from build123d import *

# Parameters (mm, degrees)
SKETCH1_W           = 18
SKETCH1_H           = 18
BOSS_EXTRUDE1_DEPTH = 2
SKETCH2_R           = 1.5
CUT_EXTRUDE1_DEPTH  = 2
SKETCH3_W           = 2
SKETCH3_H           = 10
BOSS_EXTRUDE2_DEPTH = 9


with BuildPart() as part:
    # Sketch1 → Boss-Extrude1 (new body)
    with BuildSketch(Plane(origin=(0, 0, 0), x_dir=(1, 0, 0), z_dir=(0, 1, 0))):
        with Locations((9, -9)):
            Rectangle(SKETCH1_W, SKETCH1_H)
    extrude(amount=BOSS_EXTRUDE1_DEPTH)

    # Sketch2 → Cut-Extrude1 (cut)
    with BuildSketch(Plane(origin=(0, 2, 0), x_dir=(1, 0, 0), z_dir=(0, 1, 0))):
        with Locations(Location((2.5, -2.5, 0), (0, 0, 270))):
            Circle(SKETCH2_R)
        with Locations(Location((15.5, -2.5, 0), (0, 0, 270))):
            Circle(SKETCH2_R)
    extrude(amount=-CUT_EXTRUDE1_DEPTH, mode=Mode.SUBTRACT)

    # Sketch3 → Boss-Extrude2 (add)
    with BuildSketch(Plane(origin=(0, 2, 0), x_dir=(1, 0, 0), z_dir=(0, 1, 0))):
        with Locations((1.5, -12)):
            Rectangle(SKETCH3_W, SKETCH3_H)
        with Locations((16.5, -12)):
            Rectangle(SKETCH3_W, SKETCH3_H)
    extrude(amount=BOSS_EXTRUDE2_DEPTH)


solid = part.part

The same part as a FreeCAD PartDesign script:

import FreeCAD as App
import Part
import Sketcher
Q = App.Units.Quantity

doc = App.newDocument("Part")
body = doc.addObject("PartDesign::Body", "Body")

# Sketch on XZ plane
sketch1 = body.newObject("Sketcher::SketchObject", "Sketch")
sketch1.AttachmentSupport = (doc.getObject("XZ_Plane"), [""])
sketch1.MapMode = "FlatFace"
sketch1.addGeometry(Part.LineSegment(App.Vector(0, 0, 0), App.Vector(0, 18, 0)), False)
sketch1.addGeometry(Part.LineSegment(App.Vector(0, 18, 0), App.Vector(18, 18, 0)), False)
sketch1.addGeometry(Part.LineSegment(App.Vector(18, 18, 0), App.Vector(18, 0, 0)), False)
sketch1.addGeometry(Part.LineSegment(App.Vector(18, 0, 0), App.Vector(0, 0, 0)), False)
sketch1.addConstraint(Sketcher.Constraint("Coincident", 0, 2, 1, 1))
sketch1.addConstraint(Sketcher.Constraint("Coincident", 1, 2, 2, 1))
sketch1.addConstraint(Sketcher.Constraint("Coincident", 2, 2, 3, 1))
sketch1.addConstraint(Sketcher.Constraint("Coincident", 3, 2, 0, 1))
sketch1.addConstraint(Sketcher.Constraint("Vertical", 0))
sketch1.addConstraint(Sketcher.Constraint("Horizontal", 1))
sketch1.addConstraint(Sketcher.Constraint("Vertical", 2))
sketch1.addConstraint(Sketcher.Constraint("Horizontal", 3))
sketch1.addConstraint(Sketcher.Constraint("Coincident", 3, 2, -1, 1))
sketch1.addConstraint(Sketcher.Constraint("Equal", 3, 0))
sketch1.addConstraint(Sketcher.Constraint("DistanceX", 1, 1, 1, 2, Q("18 mm")))
pad1 = body.newObject("PartDesign::Pad", "Pad")
pad1.Profile = sketch1
pad1.Length = 2
pad1.Reversed = True

# Sketch on XZ plane
sketch2 = body.newObject("Sketcher::SketchObject", "Sketch001")
sketch2.AttachmentSupport = (doc.getObject("XZ_Plane"), [""])
sketch2.MapMode = "FlatFace"
sketch2.AttachmentOffset = App.Placement(App.Vector(0, 0, -2), App.Rotation())
sketch2.addGeometry(Part.Circle(App.Vector(2.5, 2.5, 0), App.Vector(0, 0, 1), 1.5), False)
sketch2.addGeometry(Part.Circle(App.Vector(15.5, 2.5, 0), App.Vector(0, 0, 1), 1.5), False)
sketch2.addConstraint(Sketcher.Constraint("Equal", 0, 1))
sketch2.addConstraint(Sketcher.Constraint("Horizontal", 0, 3, 1, 3))
sketch2.addConstraint(Sketcher.Constraint("Diameter", 0, Q("3 mm")))
sketch2.addConstraint(Sketcher.Constraint("DistanceX", 0, 3, 1, 3, Q("13 mm")))
sketch2.addConstraint(Sketcher.Constraint("DistanceX", -1, 1, 0, 3, Q("2.5 mm")))
sketch2.addConstraint(Sketcher.Constraint("DistanceY", -1, 1, 0, 3, Q("2.5 mm")))
pocket1 = body.newObject("PartDesign::Pocket", "Pocket")
pocket1.Profile = sketch2
pocket1.Length = 2
pocket1.Reversed = True

# Sketch on XZ plane
sketch3 = body.newObject("Sketcher::SketchObject", "Sketch002")
sketch3.AttachmentSupport = (doc.getObject("XZ_Plane"), [""])
sketch3.MapMode = "FlatFace"
sketch3.AttachmentOffset = App.Placement(App.Vector(0, 0, -2), App.Rotation())
sketch3.addGeometry(Part.LineSegment(App.Vector(0.5, 7, 0), App.Vector(0.5, 17, 0)), False)
sketch3.addGeometry(Part.LineSegment(App.Vector(0.5, 17, 0), App.Vector(2.5, 17, 0)), False)
sketch3.addGeometry(Part.LineSegment(App.Vector(2.5, 17, 0), App.Vector(2.5, 7, 0)), False)
sketch3.addGeometry(Part.LineSegment(App.Vector(2.5, 7, 0), App.Vector(0.5, 7, 0)), False)
sketch3.addGeometry(Part.LineSegment(App.Vector(15.5, 7, 0), App.Vector(15.5, 17, 0)), False)
sketch3.addGeometry(Part.LineSegment(App.Vector(15.5, 17, 0), App.Vector(17.5, 17, 0)), False)
sketch3.addGeometry(Part.LineSegment(App.Vector(17.5, 17, 0), App.Vector(17.5, 7, 0)), False)
sketch3.addGeometry(Part.LineSegment(App.Vector(17.5, 7, 0), App.Vector(15.5, 7, 0)), False)
sketch3.addConstraint(Sketcher.Constraint("Coincident", 0, 2, 1, 1))
sketch3.addConstraint(Sketcher.Constraint("Coincident", 1, 2, 2, 1))
sketch3.addConstraint(Sketcher.Constraint("Coincident", 2, 2, 3, 1))
sketch3.addConstraint(Sketcher.Constraint("Coincident", 3, 2, 0, 1))
sketch3.addConstraint(Sketcher.Constraint("Coincident", 4, 2, 5, 1))
sketch3.addConstraint(Sketcher.Constraint("Coincident", 5, 2, 6, 1))
sketch3.addConstraint(Sketcher.Constraint("Coincident", 6, 2, 7, 1))
sketch3.addConstraint(Sketcher.Constraint("Coincident", 7, 2, 4, 1))
sketch3.addConstraint(Sketcher.Constraint("Vertical", 0))
sketch3.addConstraint(Sketcher.Constraint("Horizontal", 1))
sketch3.addConstraint(Sketcher.Constraint("Vertical", 2))
sketch3.addConstraint(Sketcher.Constraint("Horizontal", 3))
sketch3.addConstraint(Sketcher.Constraint("Vertical", 4))
sketch3.addConstraint(Sketcher.Constraint("Horizontal", 5))
sketch3.addConstraint(Sketcher.Constraint("Vertical", 6))
sketch3.addConstraint(Sketcher.Constraint("Horizontal", 7))
sketch3.addConstraint(Sketcher.Constraint("Horizontal", 1, 2, 4, 2))
sketch3.addConstraint(Sketcher.Constraint("Horizontal", 3, 2, 6, 2))
sketch3.addConstraint(Sketcher.Constraint("Equal", 3, 5))
sketch3.addConstraint(Sketcher.Constraint("DistanceX", 1, 1, 1, 2, Q("2 mm")))
sketch3.addConstraint(Sketcher.Constraint("DistanceY", 0, 1, 0, 2, Q("10 mm")))
sketch3.addConstraint(Sketcher.Constraint("DistanceY", -1, 1, 0, 2, Q("17 mm")))
sketch3.addConstraint(Sketcher.Constraint("DistanceX", 1, 2, 4, 2, Q("13 mm")))
sketch3.addConstraint(Sketcher.Constraint("DistanceX", -1, 1, 0, 2, Q("0.5 mm")))
pad2 = body.newObject("PartDesign::Pad", "Pad001")
pad2.Profile = sketch3
pad2.Length = 9
pad2.Reversed = True

doc.recompute()
